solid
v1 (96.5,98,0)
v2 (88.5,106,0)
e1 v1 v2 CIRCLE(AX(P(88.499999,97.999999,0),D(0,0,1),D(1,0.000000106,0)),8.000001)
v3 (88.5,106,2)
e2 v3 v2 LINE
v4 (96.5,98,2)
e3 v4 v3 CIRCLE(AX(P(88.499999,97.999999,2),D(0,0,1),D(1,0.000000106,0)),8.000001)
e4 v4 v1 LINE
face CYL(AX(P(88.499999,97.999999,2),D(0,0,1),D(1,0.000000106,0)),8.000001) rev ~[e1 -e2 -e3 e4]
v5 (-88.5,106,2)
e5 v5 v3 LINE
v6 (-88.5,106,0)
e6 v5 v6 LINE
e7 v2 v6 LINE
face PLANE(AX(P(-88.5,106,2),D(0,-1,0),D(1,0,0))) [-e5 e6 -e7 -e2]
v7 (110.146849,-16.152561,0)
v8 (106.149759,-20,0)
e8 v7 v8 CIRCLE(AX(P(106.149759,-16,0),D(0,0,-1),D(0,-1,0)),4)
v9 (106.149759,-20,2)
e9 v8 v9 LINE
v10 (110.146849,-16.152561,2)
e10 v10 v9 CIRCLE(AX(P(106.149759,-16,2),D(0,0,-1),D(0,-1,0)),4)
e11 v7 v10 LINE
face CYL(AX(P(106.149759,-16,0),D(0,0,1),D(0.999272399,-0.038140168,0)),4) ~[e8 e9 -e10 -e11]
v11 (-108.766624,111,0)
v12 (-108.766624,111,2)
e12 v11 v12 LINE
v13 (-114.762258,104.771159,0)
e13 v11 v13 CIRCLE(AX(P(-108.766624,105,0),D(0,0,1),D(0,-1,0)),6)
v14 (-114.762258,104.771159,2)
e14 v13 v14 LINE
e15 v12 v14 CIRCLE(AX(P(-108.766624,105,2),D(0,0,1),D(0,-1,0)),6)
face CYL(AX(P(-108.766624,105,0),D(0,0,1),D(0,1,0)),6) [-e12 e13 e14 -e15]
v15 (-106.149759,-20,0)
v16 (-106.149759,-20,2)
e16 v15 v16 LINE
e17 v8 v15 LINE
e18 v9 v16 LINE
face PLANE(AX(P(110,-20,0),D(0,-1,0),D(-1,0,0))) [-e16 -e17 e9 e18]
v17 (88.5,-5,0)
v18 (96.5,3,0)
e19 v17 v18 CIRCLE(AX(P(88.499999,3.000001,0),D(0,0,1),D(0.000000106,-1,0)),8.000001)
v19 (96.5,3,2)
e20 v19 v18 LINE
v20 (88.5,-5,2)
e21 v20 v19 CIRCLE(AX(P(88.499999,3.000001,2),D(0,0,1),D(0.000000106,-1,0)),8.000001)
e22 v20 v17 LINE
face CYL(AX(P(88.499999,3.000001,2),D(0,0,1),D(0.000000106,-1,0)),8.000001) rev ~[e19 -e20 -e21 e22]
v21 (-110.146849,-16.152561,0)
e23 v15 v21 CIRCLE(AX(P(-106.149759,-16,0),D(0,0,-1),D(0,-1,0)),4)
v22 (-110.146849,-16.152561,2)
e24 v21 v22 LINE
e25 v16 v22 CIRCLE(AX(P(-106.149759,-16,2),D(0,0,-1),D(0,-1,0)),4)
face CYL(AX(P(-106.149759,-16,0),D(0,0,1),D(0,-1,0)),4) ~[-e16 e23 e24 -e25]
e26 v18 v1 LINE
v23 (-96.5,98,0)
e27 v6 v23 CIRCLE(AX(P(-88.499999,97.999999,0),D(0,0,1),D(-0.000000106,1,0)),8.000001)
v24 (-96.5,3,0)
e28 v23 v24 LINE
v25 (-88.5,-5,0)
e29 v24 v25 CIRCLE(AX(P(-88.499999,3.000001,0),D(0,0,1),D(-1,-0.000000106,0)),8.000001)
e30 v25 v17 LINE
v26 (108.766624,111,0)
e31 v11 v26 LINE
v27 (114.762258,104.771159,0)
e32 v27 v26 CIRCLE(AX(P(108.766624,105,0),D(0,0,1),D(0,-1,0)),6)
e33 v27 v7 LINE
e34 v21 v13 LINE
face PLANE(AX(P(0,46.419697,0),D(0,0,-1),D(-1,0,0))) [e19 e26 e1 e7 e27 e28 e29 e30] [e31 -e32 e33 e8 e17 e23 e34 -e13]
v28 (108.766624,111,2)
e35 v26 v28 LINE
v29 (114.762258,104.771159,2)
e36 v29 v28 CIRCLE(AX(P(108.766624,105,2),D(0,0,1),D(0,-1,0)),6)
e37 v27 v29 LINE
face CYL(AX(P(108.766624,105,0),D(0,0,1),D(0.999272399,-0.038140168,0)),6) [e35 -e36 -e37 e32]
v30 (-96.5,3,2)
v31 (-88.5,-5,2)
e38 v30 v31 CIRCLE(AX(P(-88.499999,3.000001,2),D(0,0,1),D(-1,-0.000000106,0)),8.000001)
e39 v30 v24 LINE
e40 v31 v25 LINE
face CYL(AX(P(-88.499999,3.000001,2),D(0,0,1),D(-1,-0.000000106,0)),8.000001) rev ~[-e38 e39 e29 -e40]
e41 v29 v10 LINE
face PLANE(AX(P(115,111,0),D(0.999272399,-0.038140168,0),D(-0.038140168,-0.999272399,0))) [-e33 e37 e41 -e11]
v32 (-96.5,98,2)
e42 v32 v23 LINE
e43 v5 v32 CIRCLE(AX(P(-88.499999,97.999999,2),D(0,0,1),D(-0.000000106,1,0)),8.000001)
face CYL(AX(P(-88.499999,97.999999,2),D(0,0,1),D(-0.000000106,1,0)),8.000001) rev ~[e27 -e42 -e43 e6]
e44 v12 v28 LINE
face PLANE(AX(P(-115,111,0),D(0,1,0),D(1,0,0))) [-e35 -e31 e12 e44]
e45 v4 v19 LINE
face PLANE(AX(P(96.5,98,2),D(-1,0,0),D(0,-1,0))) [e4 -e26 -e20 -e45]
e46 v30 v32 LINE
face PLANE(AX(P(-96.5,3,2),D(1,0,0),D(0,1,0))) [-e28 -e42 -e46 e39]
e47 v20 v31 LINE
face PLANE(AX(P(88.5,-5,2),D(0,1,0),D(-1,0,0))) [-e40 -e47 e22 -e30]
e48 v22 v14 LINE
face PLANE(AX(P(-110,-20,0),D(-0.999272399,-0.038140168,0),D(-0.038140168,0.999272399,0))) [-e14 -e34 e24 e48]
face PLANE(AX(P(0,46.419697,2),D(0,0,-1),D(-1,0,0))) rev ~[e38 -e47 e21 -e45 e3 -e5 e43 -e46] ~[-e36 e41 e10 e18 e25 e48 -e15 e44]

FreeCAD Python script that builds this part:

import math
import FreeCAD as App
import Part
import Sketcher
from FreeCAD import Vector


def edges_at(feature, points):
    """Names of the edges that pass closest to the given points."""
    edges = feature.Shape.Edges
    near = lambda p: min(range(len(edges)), key=lambda i: edges[i].distToShape(Part.Vertex(*p))[0])
    return sorted({f"Edge{near(p) + 1}" for p in points})


def add_polygon(sketch, points):
    """Adds a closed chain of lines whose ends are joined by coincident constraints."""
    first, n = sketch.GeometryCount, len(points)
    for a, b in zip(points, points[1:] + points[:1]):
        sketch.addGeometry(Part.LineSegment(App.Vector(*a, 0), App.Vector(*b, 0)), False)
    for i in range(n):
        sketch.addConstraint(Sketcher.Constraint("Coincident", first + i, 2, first + (i + 1) % n, 1))

doc = App.newDocument("Part")
body = doc.addObject("PartDesign::Body", "Body")

# Sketch on XY plane
sketch1 = body.newObject("Sketcher::SketchObject", "Sketch")
sketch1.AttachmentSupport = (doc.getObject("XY_Plane"), [""])
sketch1.MapMode = "FlatFace"
add_polygon(sketch1, [(115, 111), (-115, 111), (-110, -20), (110, -20)])  # lines 0-3
sketch1.addConstraint([
    Sketcher.Constraint("Horizontal", 0),
    Sketcher.Constraint("Horizontal", 2),
    Sketcher.Constraint("Equal", 1, 3),
    Sketcher.Constraint("DistanceX", 0, 2, 0, 1, 230.0),
    Sketcher.Constraint("DistanceX", 2, 1, 2, 2, 220.0),
    Sketcher.Constraint("DistanceX", 0, 2, -1, 1, 115.0),
    Sketcher.Constraint("DistanceY", -1, 1, 0, 2, 111.0),
    Sketcher.Constraint("DistanceY", 1, 2, -1, 1, 20.0),
])
pad1 = body.newObject("PartDesign::Pad", "Pad")
pad1.Profile = sketch1
pad1.Length = 2
doc.recompute()

fillet = body.newObject("PartDesign::Fillet", "Fillet")
fillet.Base = (pad1, edges_at(pad1, [(-110, -20, 1), (110, -20, 1)]))
fillet.Radius = 4
doc.recompute()

fillet2 = body.newObject("PartDesign::Fillet", "Fillet001")
fillet2.Base = (fillet, edges_at(fillet, [(-115, 111, 1), (115, 111, 1)]))
fillet2.Radius = 6

# Sketch on XY plane
sketch2 = body.newObject("Sketcher::SketchObject", "Sketch001")
sketch2.AttachmentSupport = (doc.getObject("XY_Plane"), [""])
sketch2.MapMode = "FlatFace"
sketch2.AttachmentOffset = App.Placement(Vector(0, 0, 2), App.Rotation())
sketch2.addGeometry([
    Part.LineSegment(Vector(88.5, 106, 0), Vector(-88.5, 106, 0)),  # 0
    Part.ArcOfCircle(Part.Circle(Vector(-88.499999, 97.999999, 0), Vector(0, 0, 1), 8.000001), math.radians(90.000006), math.radians(179.999994)),  # 1
    Part.LineSegment(Vector(-96.5, 98, 0), Vector(-96.5, 3, 0)),  # 2
    Part.ArcOfCircle(Part.Circle(Vector(-88.499999, 3.000001, 0), Vector(0, 0, 1), 8.000001), math.radians(-179.999994), math.radians(-90.000006)),  # 3
    Part.LineSegment(Vector(-88.5, -5, 0), Vector(88.5, -5, 0)),  # 4
    Part.ArcOfCircle(Part.Circle(Vector(88.499999, 3.000001, 0), Vector(0, 0, 1), 8.000001), math.radians(-89.999994), math.radians(-0.000006)),  # 5
    Part.LineSegment(Vector(96.5, 3, 0), Vector(96.5, 98, 0)),  # 6
    Part.ArcOfCircle(Part.Circle(Vector(88.499999, 97.999999, 0), Vector(0, 0, 1), 8.000001), math.radians(0.000006), math.radians(89.999994)),  # 7
], False)
sketch2.addConstraint([
    Sketcher.Constraint("Tangent", 0, 2, 1, 1),
    Sketcher.Constraint("Tangent", 1, 2, 2, 1),
    Sketcher.Constraint("Tangent", 2, 2, 3, 1),
    Sketcher.Constraint("Tangent", 3, 2, 4, 1),
    Sketcher.Constraint("Tangent", 4, 2, 5, 1),
    Sketcher.Constraint("Tangent", 5, 2, 6, 1),
    Sketcher.Constraint("Tangent", 6, 2, 7, 1),
    Sketcher.Constraint("Tangent", 7, 2, 0, 1),
    Sketcher.Constraint("Horizontal", 0),
    Sketcher.Constraint("Vertical", 2),
    Sketcher.Constraint("Horizontal", 4),
    Sketcher.Constraint("Vertical", 6),
    Sketcher.Constraint("Equal", 1, 3),
    Sketcher.Constraint("Equal", 3, 5),
    Sketcher.Constraint("Equal", 5, 7),
    Sketcher.Constraint("Radius", 1, 8.000001),
    Sketcher.Constraint("DistanceX", 0, 2, 0, 1, 177.0),
    Sketcher.Constraint("DistanceY", 2, 2, 2, 1, 95.0),
    Sketcher.Constraint("DistanceY", -1, 1, 1, 3, 97.999999),
    Sketcher.Constraint("DistanceX", 1, 3, -1, 1, 88.499999),
])
pocket1 = body.newObject("PartDesign::Pocket", "Pocket")
pocket1.Profile = sketch2
pocket1.Length = 5

doc.recompute()
